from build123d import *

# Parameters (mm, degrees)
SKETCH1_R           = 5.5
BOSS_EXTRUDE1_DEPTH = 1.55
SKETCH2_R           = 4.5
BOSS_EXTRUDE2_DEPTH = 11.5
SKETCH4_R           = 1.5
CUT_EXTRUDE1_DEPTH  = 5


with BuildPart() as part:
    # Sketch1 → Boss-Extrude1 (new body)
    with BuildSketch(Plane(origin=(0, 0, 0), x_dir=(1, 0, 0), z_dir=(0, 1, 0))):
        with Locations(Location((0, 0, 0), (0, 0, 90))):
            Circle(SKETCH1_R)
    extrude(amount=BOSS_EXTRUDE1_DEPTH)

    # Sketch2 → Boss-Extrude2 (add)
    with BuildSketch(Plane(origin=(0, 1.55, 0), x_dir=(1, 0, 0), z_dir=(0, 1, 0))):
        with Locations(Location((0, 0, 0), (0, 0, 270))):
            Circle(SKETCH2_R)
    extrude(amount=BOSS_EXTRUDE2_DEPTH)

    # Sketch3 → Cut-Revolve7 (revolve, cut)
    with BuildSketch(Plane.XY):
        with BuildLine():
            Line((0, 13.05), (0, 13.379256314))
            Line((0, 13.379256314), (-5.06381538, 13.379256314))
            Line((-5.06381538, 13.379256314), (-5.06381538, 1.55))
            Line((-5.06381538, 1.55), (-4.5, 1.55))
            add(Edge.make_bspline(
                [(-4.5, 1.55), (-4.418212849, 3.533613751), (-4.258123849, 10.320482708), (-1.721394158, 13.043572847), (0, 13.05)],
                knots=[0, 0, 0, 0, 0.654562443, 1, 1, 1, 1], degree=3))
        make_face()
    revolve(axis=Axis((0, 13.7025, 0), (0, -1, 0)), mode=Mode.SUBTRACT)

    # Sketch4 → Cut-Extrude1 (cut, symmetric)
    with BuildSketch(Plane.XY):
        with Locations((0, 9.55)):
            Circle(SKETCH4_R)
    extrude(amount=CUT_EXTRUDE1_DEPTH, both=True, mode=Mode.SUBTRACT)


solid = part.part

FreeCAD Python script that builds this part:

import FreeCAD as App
import Part
import Sketcher

V = App.Vector

doc = App.newDocument("Part")
body = doc.addObject("PartDesign::Body", "Body")

# Sketch on XZ plane
sketch1 = doc.addObject("Sketcher::SketchObject", "Sketch")
body.addObject(sketch1)
sketch1.AttachmentSupport = (doc.XZ_Plane, [""])
sketch1.MapMode = "FlatFace"
sketch1.addGeometry(Part.Circle(V(0, 0, 0), V(0, 0, 1), 6), False)
sketch1.addConstraint([
    Sketcher.Constraint("Coincident", 0, 3, -1, 1),
    Sketcher.Constraint("Diameter", 0, 11.0),
])
pad1 = doc.addObject("PartDesign::Pad", "Pad")
body.addObject(pad1)
pad1.Profile = sketch1
pad1.Length = 1.55
pad1.Reversed = True

# Sketch on XZ plane
sketch2 = doc.addObject("Sketcher::SketchObject", "Sketch001")
body.addObject(sketch2)
sketch2.AttachmentSupport = (doc.XZ_Plane, [""])
sketch2.MapMode = "FlatFace"
sketch2.AttachmentOffset = App.Placement(V(0, 0, -1.55), App.Rotation())
sketch2.addGeometry(Part.Circle(V(0, 0, 0), V(0, 0, 1), 4.5), False)
sketch2.addConstraint([
    Sketcher.Constraint("Coincident", 0, 3, -1, 1),
    Sketcher.Constraint("Diameter", 0, 9.0),
])
pad2 = doc.addObject("PartDesign::Pad", "Pad001")
body.addObject(pad2)
pad2.Profile = sketch2
pad2.Length = 11.5
pad2.Reversed = True

# Sketch on XY plane
sketch3 = doc.addObject("Sketcher::SketchObject", "Sketch002")
body.addObject(sketch3)
sketch3.AttachmentSupport = (doc.XY_Plane, [""])
sketch3.MapMode = "FlatFace"
sketch3.addGeometry([
    Part.LineSegment(V(0, 13.05, 0), V(0, 13.379256, 0)),  # 0
    Part.LineSegment(V(0, 13.379256, 0), V(-5.063815, 13.379256, 0)),  # 1
    Part.LineSegment(V(-5.063815, 13.379256, 0), V(-5.063815, 1.55, 0)),  # 2
    Part.LineSegment(V(-5.063815, 1.55, 0), V(-4.5, 1.55, 0)),  # 3
    Part.BSplineCurve([V(-4.5, 1.55, 0), V(-4.418213, 3.533614, 0), V(-4.258124, 10.320483, 0), V(-1.721394, 13.043573, 0), V(0, 13.05, 0)], [4, 1, 4], [0, 0.654562443, 1], False, 3, [1, 1, 1, 1, 1], False),  # 4
], False)
sketch3.addConstraint([
    Sketcher.Constraint("Block", 4),
    Sketcher.Constraint("Coincident", 0, 2, 1, 1),
    Sketcher.Constraint("Coincident", 1, 2, 2, 1),
    Sketcher.Constraint("Coincident", 2, 2, 3, 1),
    Sketcher.Constraint("Coincident", 3, 2, 4, 1),
    Sketcher.Constraint("Coincident", 4, 2, 0, 1),
    Sketcher.Constraint("Vertical", 0),
    Sketcher.Constraint("Horizontal", 1),
    Sketcher.Constraint("Vertical", 2),
    Sketcher.Constraint("Horizontal", 3),
    Sketcher.Constraint("DistanceX", 1, 2, 1, 1, 5.063815),
    Sketcher.Constraint("DistanceY", 0, 1, 0, 2, 0.329256),
])
groove = doc.addObject("PartDesign::Groove", "Groove")
body.addObject(groove)
groove.Profile = sketch3
groove.ReferenceAxis = (sketch3, ["V_Axis"])
groove.Angle = 360

# Sketch on XY plane
sketch4 = doc.addObject("Sketcher::SketchObject", "Sketch003")
body.addObject(sketch4)
sketch4.AttachmentSupport = (doc.XY_Plane, [""])
sketch4.MapMode = "FlatFace"
sketch4.addGeometry(Part.Circle(V(0, 9.6, 0), V(0, 0, 1), 1.5), False)
sketch4.addConstraint([
    Sketcher.Constraint("PointOnObject", 0, 3, -2),
    Sketcher.Constraint("Diameter", 0, 3.0),
    Sketcher.Constraint("DistanceY", -1, 1, 0, 3, 9.55),
])
pocket1 = doc.addObject("PartDesign::Pocket", "Pocket")
body.addObject(pocket1)
pocket1.Profile = sketch4
pocket1.Length = 10
pocket1.Midplane = True

doc.recompute()
